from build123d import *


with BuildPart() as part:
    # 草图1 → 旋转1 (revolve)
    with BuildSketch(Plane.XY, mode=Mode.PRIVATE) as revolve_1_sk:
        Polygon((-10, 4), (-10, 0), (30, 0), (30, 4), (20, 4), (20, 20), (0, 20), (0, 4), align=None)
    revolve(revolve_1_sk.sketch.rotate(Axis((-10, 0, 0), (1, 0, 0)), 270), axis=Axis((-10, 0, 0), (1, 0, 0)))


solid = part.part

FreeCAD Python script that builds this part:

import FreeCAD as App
import Part
import Sketcher
Q = App.Units.Quantity

doc = App.newDocument("Part")
body = doc.addObject("PartDesign::Body", "Body")

sketch1 = doc.addObject("Sketcher::SketchObject", "Sketch")
body.addObject(sketch1)
sketch1.AttachmentSupport = (doc.XY_Plane, [""])
sketch1.MapMode = "FlatFace"
sketch1.addGeometry(Part.LineSegment(App.Vector(-10, 4, 0), App.Vector(-10, 0, 0)), False)
sketch1.addGeometry(Part.LineSegment(App.Vector(-10, 0, 0), App.Vector(30, 0, 0)), False)
sketch1.addGeometry(Part.LineSegment(App.Vector(30, 0, 0), App.Vector(30, 4, 0)), False)
sketch1.addGeometry(Part.LineSegment(App.Vector(30, 4, 0), App.Vector(20, 4, 0)), False)
sketch1.addGeometry(Part.LineSegment(App.Vector(20, 4, 0), App.Vector(20, 20, 0)), False)
sketch1.addGeometry(Part.LineSegment(App.Vector(20, 20, 0), App.Vector(0, 20, 0)), False)
sketch1.addGeometry(Part.LineSegment(App.Vector(0, 20, 0), App.Vector(0, 4, 0)), False)
sketch1.addGeometry(Part.LineSegment(App.Vector(0, 4, 0), App.Vector(-10, 4, 0)), False)
sketch1.addConstraint(Sketcher.Constraint("Coincident", 0, 2, 1, 1))
sketch1.addConstraint(Sketcher.Constraint("Coincident", 1, 2, 2, 1))
sketch1.addConstraint(Sketcher.Constraint("Coincident", 2, 2, 3, 1))
sketch1.addConstraint(Sketcher.Constraint("Coincident", 3, 2, 4, 1))
sketch1.addConstraint(Sketcher.Constraint("Coincident", 4, 2, 5, 1))
sketch1.addConstraint(Sketcher.Constraint("Coincident", 5, 2, 6, 1))
sketch1.addConstraint(Sketcher.Constraint("Coincident", 6, 2, 7, 1))
sketch1.addConstraint(Sketcher.Constraint("Coincident", 7, 2, 0, 1))
sketch1.addConstraint(Sketcher.Constraint("Vertical", 0))
sketch1.addConstraint(Sketcher.Constraint("Horizontal", 1))
sketch1.addConstraint(Sketcher.Constraint("Vertical", 2))
sketch1.addConstraint(Sketcher.Constraint("Horizontal", 3))
sketch1.addConstraint(Sketcher.Constraint("Vertical", 4))
sketch1.addConstraint(Sketcher.Constraint("Horizontal", 5))
sketch1.addConstraint(Sketcher.Constraint("Vertical", 6))
sketch1.addConstraint(Sketcher.Constraint("Horizontal", 7))
sketch1.addConstraint(Sketcher.Constraint("PointOnObject", 0, 2, -1))
sketch1.addConstraint(Sketcher.Constraint("PointOnObject", 5, 2, -2))
sketch1.addConstraint(Sketcher.Constraint("Horizontal", 3, 2, 6, 2))
sketch1.addConstraint(Sketcher.Constraint("Equal", 3, 7))
sketch1.addConstraint(Sketcher.Constraint("DistanceX", 1, 1, 1, 2, Q("40 mm")))
sketch1.addConstraint(Sketcher.Constraint("DistanceX", 3, 2, 3, 1, Q("10 mm")))
sketch1.addConstraint(Sketcher.Constraint("DistanceY", 0, 2, 0, 1, Q("4 mm")))
sketch1.addConstraint(Sketcher.Constraint("DistanceY", 4, 1, 4, 2, Q("16 mm")))
revolution = doc.addObject("PartDesign::Revolution", "Revolution")
body.addObject(revolution)
revolution.Profile = sketch1
revolution.ReferenceAxis = (sketch1, ["H_Axis"])
revolution.Angle = 360

doc.recompute()
